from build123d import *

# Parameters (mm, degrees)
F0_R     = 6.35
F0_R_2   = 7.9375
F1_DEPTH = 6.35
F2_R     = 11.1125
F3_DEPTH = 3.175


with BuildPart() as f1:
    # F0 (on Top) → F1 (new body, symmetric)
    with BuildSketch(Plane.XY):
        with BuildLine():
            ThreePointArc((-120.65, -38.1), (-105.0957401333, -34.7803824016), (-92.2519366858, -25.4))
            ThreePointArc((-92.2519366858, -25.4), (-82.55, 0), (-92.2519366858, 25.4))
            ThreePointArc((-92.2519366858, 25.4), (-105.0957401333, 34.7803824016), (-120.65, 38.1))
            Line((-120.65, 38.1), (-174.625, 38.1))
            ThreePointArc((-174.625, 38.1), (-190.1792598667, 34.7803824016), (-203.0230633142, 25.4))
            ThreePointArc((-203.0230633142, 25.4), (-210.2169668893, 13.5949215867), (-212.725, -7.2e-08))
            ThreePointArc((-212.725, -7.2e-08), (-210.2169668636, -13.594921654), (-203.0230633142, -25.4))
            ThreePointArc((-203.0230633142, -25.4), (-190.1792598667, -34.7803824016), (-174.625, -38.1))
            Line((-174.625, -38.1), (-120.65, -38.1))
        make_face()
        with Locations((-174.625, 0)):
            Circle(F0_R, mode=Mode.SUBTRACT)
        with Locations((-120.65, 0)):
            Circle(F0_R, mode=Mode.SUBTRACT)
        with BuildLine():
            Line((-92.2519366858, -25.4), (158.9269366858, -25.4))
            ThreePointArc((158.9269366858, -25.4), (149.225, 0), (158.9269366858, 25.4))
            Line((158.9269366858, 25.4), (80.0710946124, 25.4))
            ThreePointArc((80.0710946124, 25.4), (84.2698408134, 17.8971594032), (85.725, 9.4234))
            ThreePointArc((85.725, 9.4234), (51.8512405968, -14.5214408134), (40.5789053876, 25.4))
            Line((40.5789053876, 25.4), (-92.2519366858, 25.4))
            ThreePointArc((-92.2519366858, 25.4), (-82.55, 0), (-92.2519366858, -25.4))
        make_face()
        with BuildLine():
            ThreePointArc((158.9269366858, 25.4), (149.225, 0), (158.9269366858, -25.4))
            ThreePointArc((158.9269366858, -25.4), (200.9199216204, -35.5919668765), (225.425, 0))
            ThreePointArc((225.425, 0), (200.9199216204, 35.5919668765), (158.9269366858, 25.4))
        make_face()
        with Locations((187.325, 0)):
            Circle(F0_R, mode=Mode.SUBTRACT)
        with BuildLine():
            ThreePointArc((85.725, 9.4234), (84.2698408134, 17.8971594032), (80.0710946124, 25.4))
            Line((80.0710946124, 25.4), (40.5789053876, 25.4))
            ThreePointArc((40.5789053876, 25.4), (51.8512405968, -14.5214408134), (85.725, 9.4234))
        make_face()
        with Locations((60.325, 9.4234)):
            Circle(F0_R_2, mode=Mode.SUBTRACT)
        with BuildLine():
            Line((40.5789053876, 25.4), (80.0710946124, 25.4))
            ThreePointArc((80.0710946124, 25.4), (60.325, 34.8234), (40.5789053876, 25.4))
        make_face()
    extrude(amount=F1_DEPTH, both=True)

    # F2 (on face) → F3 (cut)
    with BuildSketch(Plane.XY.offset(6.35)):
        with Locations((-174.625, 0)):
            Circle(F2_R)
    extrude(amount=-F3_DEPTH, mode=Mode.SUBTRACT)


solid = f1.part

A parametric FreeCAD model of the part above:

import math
import FreeCAD as App
import Part
import Sketcher
Q = App.Units.Quantity

doc = App.newDocument("Part")
body = doc.addObject("PartDesign::Body", "Body")

sketch1 = body.newObject("Sketcher::SketchObject", "Sketch")
sketch1.AttachmentSupport = (doc.getObject("XY_Plane"), [""])
sketch1.MapMode = "FlatFace"
sketch1.addGeometry([
    Part.ArcOfCircle(Part.Circle(App.Vector(-120.65, 0, 0), App.Vector(0, 0, 1), 38.1), math.radians(-90), math.radians(-41.810315)),
    Part.LineSegment(App.Vector(-92.251937, -25.4, 0), App.Vector(158.926937, -25.4, 0)),
    Part.ArcOfCircle(Part.Circle(App.Vector(187.325, 0, 0), App.Vector(0, 0, 1), 38.1), math.radians(-138.189685), math.radians(0)),
    Part.ArcOfCircle(Part.Circle(App.Vector(187.325, 0, 0), App.Vector(0, 0, 1), 38.1), math.radians(0), math.radians(138.189685)),
    Part.LineSegment(App.Vector(158.926937, 25.4, 0), App.Vector(80.071095, 25.4, 0)),
    Part.ArcOfCircle(Part.Circle(App.Vector(60.325, 9.4234, 0), App.Vector(0, 0, 1), 25.4), math.radians(38.976383), math.radians(141.023617)),
    Part.LineSegment(App.Vector(40.578905, 25.4, 0), App.Vector(-92.251937, 25.4, 0)),
    Part.ArcOfCircle(Part.Circle(App.Vector(-120.65, 0, 0), App.Vector(0, 0, 1), 38.1), math.radians(41.810315), math.radians(90)),
    Part.LineSegment(App.Vector(-120.65, 38.1, 0), App.Vector(-174.625, 38.1, 0)),
    Part.ArcOfCircle(Part.Circle(App.Vector(-174.625, 0, 0), App.Vector(0, 0, 1), 38.1), math.radians(90), math.radians(138.189685)),
    Part.ArcOfCircle(Part.Circle(App.Vector(-174.625, 0, 0), App.Vector(0, 0, 1), 38.1), math.radians(138.189685), math.radians(180)),
    Part.ArcOfCircle(Part.Circle(App.Vector(-174.625, 0, 0), App.Vector(0, 0, 1), 38.1), math.radians(-180), math.radians(-138.189685)),
    Part.ArcOfCircle(Part.Circle(App.Vector(-174.625, 0, 0), App.Vector(0, 0, 1), 38.1), math.radians(-138.189685), math.radians(-90)),
    Part.LineSegment(App.Vector(-174.625, -38.1, 0), App.Vector(-120.65, -38.1, 0)),
    Part.Circle(App.Vector(-174.625, 0, 0), App.Vector(0, 0, 1), 6.35),
    Part.Circle(App.Vector(-120.65, 0, 0), App.Vector(0, 0, 1), 6.35),
    Part.Circle(App.Vector(187.325, 0, 0), App.Vector(0, 0, 1), 6.35),
    Part.Circle(App.Vector(60.325, 9.4234, 0), App.Vector(0, 0, 1), 7.9375),
], False)
sketch1.addConstraint([
    Sketcher.Constraint("Coincident", 0, 2, 1, 1),
    Sketcher.Constraint("Coincident", 1, 2, 2, 1),
    Sketcher.Constraint("Tangent", 2, 2, 3, 1),
    Sketcher.Constraint("Coincident", 3, 2, 4, 1),
    Sketcher.Constraint("Coincident", 4, 2, 5, 1),
    Sketcher.Constraint("Coincident", 5, 2, 6, 1),
    Sketcher.Constraint("Coincident", 6, 2, 7, 1),
    Sketcher.Constraint("Tangent", 7, 2, 8, 1),
    Sketcher.Constraint("Tangent", 8, 2, 9, 1),
    Sketcher.Constraint("Tangent", 9, 2, 10, 1),
    Sketcher.Constraint("Tangent", 10, 2, 11, 1),
    Sketcher.Constraint("Tangent", 11, 2, 12, 1),
    Sketcher.Constraint("Tangent", 12, 2, 13, 1),
    Sketcher.Constraint("Tangent", 13, 2, 0, 1),
    Sketcher.Constraint("Horizontal", 1),
    Sketcher.Constraint("Horizontal", 4),
    Sketcher.Constraint("Horizontal", 6),
    Sketcher.Constraint("Horizontal", 8),
    Sketcher.Constraint("Horizontal", 13),
    Sketcher.Constraint("Coincident", 7, 3, 0, 3),
    Sketcher.Constraint("Coincident", 11, 3, 9, 3),
    Sketcher.Constraint("Coincident", 14, 3, 9, 3),
    Sketcher.Constraint("Coincident", 15, 3, 0, 3),
    Sketcher.Constraint("Coincident", 16, 3, 2, 3),
    Sketcher.Constraint("Coincident", 17, 3, 5, 3),
    Sketcher.Constraint("Equal", 0, 2),
    Sketcher.Constraint("Equal", 2, 3),
    Sketcher.Constraint("Equal", 3, 7),
    Sketcher.Constraint("Equal", 7, 9),
    Sketcher.Constraint("Equal", 14, 15),
    Sketcher.Constraint("Equal", 15, 16),
    Sketcher.Constraint("Symmetric", 1, 2, 3, 2, -1),
    Sketcher.Constraint("Symmetric", 0, 2, 6, 2, -1),
    Sketcher.Constraint("PointOnObject", 2, 2, -1),
    Sketcher.Constraint("PointOnObject", 10, 2, -1),
    Sketcher.Constraint("Horizontal", 6, 2, 9, 2),
    Sketcher.Constraint("Horizontal", 1, 2, 11, 2),
    Sketcher.Constraint("Radius", 5, Q("1 in")),
    Sketcher.Constraint("Diameter", 14, Q("0.5 in")),
    Sketcher.Constraint("Radius", 0, Q("1.5 in")),
    Sketcher.Constraint("Diameter", 17, Q("0.625 in")),
    Sketcher.Constraint("DistanceY", 0, 2, -1, 1, Q("1 in")),
    Sketcher.Constraint("DistanceX", 5, 3, 2, 3, Q("5 in")),
    Sketcher.Constraint("DistanceX", 8, 2, 8, 1, Q("2.125 in")),
    Sketcher.Constraint("DistanceX", 0, 3, -1, 1, Q("4.75 in")),
    Sketcher.Constraint("DistanceX", 9, 3, 5, 3, Q("9.25 in")),
    Sketcher.Constraint("DistanceY", -1, 1, 5, 3, Q("0.371 in")),
])
pad1 = body.newObject("PartDesign::Pad", "Pad")
pad1.Profile = sketch1
pad1.Length = Q("0.5 in")
pad1.Midplane = True

sketch2 = body.newObject("Sketcher::SketchObject", "Sketch001")
sketch2.AttachmentSupport = (doc.getObject("XY_Plane"), [""])
sketch2.MapMode = "FlatFace"
sketch2.AttachmentOffset = App.Placement(App.Vector(0, 0, 0.25 * 25.4), App.Rotation())
sketch2.addGeometry(Part.Circle(App.Vector(-174.625, 0, 0), App.Vector(0, 0, 1), 11.1125), False)
sketch2.addConstraint([
    Sketcher.Constraint("PointOnObject", 0, 3, -1),
    Sketcher.Constraint("Diameter", 0, Q("0.875 in")),
    Sketcher.Constraint("DistanceX", 0, 3, -1, 1, Q("6.875 in")),
])
pocket1 = body.newObject("PartDesign::Pocket", "Pocket")
pocket1.Profile = sketch2
pocket1.Length = Q("0.125 in")

doc.recompute()
